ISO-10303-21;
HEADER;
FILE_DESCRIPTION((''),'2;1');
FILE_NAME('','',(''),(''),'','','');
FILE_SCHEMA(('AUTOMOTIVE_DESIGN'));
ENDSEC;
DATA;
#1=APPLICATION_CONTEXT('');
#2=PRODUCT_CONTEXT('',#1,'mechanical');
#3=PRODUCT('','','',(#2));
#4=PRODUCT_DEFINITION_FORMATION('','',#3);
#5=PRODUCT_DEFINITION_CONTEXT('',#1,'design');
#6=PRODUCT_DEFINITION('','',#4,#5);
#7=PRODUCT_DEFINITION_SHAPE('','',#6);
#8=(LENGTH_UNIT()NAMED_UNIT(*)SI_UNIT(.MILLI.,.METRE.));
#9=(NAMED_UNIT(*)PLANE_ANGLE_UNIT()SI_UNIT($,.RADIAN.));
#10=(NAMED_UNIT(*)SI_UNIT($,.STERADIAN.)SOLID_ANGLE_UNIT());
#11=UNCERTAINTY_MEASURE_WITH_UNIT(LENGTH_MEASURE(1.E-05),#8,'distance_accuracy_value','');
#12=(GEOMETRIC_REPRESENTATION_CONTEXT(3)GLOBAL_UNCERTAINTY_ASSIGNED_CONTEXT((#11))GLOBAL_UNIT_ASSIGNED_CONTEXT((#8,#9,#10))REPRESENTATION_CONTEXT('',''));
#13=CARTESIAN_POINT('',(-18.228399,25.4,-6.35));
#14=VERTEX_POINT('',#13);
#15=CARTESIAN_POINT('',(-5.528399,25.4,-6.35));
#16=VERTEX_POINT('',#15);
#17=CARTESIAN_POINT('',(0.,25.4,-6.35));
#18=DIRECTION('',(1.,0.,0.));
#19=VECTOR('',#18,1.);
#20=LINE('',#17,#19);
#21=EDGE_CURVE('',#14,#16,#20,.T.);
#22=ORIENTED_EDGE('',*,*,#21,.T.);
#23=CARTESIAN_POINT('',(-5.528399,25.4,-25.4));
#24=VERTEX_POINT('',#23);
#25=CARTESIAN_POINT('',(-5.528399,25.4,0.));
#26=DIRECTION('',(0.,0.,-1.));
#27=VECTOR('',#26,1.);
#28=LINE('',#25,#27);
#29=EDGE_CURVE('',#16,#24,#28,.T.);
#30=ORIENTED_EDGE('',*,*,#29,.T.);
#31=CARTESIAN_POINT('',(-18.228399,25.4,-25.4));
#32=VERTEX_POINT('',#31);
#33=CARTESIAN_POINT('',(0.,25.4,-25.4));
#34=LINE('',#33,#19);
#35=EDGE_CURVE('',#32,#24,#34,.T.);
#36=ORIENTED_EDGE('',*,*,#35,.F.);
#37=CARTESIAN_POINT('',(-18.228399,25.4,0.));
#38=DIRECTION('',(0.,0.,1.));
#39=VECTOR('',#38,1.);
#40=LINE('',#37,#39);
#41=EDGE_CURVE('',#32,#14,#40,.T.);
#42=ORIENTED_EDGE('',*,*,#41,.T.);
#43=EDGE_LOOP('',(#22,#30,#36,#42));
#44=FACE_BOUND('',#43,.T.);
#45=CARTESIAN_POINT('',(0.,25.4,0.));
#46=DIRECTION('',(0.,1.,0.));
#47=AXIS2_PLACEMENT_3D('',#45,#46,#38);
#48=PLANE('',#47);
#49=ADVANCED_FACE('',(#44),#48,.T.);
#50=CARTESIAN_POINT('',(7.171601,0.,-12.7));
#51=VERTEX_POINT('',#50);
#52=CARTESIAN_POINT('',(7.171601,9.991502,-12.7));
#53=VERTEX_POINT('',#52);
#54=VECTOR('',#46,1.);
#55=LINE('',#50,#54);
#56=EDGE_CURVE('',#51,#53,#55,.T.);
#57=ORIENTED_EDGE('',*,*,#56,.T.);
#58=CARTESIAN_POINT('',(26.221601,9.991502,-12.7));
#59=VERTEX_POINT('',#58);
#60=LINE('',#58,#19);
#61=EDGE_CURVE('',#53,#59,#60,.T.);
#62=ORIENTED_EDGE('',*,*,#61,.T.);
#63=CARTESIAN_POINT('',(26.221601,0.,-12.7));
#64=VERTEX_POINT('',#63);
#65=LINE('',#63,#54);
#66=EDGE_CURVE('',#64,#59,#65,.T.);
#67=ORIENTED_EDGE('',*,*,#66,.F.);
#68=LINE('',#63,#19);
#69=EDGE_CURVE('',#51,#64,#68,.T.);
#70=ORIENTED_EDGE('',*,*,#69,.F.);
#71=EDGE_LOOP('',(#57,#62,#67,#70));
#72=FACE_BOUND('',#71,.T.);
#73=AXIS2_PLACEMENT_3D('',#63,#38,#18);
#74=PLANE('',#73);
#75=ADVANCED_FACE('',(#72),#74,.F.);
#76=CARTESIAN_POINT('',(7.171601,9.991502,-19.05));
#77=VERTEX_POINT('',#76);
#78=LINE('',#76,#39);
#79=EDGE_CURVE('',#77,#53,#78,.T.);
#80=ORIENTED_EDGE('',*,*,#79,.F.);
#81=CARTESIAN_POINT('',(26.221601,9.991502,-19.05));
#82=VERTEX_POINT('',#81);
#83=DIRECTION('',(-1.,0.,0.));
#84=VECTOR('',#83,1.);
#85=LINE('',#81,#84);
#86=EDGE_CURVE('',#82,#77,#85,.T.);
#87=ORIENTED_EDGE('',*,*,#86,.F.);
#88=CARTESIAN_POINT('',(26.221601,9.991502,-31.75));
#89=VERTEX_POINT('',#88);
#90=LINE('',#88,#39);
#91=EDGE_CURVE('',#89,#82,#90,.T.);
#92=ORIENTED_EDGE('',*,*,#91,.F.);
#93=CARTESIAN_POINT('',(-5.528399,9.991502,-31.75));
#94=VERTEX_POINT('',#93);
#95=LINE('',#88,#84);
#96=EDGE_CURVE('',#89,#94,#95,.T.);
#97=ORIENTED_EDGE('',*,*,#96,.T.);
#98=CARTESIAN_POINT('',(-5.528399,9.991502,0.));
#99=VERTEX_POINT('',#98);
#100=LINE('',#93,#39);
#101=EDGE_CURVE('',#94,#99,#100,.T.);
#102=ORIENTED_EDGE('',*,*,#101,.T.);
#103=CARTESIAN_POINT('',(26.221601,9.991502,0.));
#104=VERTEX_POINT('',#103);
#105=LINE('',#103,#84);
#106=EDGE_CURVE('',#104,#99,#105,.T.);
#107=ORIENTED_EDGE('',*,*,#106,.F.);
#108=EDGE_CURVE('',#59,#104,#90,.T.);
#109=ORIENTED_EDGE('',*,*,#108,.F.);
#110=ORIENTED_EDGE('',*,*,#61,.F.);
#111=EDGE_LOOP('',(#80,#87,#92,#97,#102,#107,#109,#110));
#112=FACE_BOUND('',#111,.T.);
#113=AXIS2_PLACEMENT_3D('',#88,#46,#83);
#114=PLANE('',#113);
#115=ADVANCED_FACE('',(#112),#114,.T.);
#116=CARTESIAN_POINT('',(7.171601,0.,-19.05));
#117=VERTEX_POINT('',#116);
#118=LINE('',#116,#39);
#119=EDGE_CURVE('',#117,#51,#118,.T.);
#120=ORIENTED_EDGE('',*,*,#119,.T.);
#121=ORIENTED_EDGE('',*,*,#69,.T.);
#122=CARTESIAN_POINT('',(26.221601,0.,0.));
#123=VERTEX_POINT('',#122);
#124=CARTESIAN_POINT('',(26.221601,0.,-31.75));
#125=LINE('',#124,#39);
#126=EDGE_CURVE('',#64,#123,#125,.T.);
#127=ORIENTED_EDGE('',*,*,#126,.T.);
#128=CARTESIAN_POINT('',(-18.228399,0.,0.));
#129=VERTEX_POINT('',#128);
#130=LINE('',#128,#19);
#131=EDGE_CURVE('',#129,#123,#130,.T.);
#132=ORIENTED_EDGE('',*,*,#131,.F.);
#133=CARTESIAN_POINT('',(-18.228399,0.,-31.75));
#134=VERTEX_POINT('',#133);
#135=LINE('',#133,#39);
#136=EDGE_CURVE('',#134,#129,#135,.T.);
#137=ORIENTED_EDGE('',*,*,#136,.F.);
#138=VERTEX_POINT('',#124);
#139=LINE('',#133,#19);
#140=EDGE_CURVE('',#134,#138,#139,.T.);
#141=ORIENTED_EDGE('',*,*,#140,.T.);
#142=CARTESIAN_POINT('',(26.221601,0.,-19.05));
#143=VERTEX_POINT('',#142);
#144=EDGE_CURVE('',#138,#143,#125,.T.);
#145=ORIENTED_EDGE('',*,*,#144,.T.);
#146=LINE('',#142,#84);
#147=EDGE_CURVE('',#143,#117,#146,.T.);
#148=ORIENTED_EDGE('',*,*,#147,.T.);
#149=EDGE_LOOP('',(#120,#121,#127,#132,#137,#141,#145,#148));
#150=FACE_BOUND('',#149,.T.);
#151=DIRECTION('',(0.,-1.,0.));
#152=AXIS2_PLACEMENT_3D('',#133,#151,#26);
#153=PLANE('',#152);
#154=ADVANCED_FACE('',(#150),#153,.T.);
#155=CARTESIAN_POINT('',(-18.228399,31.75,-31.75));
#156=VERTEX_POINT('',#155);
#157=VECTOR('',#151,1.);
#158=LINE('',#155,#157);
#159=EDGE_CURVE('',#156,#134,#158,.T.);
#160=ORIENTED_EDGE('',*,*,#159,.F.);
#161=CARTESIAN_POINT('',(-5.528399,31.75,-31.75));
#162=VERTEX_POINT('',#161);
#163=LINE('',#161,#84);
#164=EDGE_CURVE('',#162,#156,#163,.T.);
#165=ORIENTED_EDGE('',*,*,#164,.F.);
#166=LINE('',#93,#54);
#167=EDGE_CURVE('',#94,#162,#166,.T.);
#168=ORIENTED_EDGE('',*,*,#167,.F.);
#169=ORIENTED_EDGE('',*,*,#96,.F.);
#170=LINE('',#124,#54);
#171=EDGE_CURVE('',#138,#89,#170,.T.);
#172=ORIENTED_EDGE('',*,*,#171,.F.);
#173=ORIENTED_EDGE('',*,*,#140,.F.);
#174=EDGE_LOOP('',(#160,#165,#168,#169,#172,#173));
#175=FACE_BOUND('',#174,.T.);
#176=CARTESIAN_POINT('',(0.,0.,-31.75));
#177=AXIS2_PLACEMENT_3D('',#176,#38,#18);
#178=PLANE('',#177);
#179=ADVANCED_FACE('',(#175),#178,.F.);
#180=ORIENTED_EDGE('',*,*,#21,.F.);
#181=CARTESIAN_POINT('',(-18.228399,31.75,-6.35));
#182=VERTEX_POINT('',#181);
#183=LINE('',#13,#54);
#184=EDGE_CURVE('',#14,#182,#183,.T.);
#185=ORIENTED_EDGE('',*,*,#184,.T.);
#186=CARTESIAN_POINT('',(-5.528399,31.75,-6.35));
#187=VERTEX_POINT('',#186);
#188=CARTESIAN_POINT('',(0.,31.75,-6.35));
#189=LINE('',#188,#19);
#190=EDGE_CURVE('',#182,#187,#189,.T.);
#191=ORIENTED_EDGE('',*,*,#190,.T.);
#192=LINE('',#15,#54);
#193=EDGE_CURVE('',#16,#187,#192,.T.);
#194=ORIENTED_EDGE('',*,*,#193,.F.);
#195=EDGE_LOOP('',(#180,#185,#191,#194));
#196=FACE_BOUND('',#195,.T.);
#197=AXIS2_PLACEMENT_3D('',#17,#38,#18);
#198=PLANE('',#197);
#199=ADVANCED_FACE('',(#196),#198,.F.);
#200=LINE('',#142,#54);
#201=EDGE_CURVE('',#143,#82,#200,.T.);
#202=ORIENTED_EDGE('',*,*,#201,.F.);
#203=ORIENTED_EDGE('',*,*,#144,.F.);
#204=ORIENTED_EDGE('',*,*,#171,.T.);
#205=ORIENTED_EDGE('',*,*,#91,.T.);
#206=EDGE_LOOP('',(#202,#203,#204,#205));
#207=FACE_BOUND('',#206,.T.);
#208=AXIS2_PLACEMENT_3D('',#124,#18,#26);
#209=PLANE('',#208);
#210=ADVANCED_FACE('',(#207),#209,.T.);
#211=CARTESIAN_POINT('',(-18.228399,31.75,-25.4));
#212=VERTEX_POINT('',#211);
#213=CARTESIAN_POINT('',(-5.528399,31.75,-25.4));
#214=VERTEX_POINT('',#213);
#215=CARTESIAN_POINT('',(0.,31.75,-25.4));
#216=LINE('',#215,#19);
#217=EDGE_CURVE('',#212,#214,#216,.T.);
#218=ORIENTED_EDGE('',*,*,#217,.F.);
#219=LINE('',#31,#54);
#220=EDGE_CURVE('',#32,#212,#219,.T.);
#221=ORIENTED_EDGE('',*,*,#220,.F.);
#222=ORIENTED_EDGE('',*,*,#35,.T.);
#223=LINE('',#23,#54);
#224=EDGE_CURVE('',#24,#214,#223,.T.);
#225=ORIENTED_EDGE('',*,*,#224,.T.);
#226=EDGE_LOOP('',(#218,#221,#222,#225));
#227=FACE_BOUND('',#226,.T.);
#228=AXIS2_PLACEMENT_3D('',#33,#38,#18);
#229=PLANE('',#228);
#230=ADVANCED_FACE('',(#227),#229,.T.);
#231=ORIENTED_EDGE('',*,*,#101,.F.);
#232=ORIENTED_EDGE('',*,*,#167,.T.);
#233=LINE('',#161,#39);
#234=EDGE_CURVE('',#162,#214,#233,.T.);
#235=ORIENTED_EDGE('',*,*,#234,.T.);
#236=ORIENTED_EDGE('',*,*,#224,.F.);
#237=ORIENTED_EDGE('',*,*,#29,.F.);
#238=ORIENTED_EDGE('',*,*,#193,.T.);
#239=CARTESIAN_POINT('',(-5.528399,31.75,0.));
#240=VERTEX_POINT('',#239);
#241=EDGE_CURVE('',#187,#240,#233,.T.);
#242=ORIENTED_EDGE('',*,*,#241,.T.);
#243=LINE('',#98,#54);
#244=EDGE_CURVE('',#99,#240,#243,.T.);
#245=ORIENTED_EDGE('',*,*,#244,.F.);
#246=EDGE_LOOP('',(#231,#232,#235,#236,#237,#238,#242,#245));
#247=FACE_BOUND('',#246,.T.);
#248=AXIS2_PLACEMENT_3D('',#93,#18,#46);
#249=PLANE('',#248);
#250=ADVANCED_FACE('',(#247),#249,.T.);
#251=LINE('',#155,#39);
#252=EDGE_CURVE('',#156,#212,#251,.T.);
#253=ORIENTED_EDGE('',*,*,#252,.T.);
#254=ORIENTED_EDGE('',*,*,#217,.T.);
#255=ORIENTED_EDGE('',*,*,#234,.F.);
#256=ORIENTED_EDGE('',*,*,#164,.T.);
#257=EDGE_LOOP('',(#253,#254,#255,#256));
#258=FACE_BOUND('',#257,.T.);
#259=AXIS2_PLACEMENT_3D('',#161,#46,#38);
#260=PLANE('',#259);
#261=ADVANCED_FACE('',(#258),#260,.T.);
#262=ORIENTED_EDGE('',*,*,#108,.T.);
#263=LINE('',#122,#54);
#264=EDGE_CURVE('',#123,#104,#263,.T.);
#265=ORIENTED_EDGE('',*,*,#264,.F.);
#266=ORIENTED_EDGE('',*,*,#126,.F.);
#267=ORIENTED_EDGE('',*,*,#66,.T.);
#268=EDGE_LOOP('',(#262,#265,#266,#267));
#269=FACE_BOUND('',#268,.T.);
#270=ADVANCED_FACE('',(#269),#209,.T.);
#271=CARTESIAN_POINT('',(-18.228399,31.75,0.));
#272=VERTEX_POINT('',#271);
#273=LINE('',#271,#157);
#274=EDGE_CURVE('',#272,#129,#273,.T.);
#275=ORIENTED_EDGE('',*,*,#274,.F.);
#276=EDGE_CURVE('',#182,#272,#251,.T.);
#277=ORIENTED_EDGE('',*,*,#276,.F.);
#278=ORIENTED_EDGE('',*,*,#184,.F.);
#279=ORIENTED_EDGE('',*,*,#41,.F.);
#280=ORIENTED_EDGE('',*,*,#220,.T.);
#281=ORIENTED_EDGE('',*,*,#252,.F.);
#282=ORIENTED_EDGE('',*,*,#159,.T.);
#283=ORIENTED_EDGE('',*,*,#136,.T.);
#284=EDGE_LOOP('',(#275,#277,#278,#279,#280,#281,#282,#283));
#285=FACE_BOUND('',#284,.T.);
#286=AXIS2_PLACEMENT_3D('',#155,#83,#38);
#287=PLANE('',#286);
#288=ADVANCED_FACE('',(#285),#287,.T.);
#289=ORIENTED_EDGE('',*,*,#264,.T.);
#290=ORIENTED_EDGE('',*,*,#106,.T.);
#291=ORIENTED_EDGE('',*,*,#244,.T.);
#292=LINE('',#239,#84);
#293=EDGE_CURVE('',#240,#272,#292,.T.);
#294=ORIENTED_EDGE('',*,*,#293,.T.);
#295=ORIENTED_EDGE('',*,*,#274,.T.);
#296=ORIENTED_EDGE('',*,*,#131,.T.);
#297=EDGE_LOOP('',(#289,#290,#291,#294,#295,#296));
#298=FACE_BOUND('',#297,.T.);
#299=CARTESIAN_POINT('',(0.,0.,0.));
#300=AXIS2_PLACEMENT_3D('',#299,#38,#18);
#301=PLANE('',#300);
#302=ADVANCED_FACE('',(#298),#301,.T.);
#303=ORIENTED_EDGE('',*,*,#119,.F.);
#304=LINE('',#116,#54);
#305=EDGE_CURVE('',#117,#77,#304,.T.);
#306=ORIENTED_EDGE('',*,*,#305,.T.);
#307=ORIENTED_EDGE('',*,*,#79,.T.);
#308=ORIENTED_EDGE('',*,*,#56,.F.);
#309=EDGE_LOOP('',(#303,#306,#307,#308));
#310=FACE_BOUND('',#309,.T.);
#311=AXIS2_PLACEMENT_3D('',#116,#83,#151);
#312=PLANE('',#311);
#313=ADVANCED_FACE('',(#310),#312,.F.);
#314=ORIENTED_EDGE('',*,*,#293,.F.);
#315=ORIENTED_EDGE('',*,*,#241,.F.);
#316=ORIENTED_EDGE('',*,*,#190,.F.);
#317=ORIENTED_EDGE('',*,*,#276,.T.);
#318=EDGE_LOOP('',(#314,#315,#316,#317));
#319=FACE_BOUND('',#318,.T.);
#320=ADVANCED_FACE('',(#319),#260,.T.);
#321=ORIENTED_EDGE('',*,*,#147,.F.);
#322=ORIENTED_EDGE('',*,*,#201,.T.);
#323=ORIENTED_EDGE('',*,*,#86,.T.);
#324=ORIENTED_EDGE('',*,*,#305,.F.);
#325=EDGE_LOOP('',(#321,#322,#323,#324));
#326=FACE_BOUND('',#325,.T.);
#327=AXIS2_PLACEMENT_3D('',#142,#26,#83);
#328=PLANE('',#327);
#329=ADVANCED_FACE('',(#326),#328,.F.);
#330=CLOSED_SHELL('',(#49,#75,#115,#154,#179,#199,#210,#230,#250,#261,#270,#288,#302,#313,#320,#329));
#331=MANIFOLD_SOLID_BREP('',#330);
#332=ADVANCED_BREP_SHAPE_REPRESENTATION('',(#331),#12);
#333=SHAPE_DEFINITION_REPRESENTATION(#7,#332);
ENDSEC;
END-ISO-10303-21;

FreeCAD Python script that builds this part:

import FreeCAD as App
import Part
import Sketcher
Q = App.Units.Quantity

doc = App.newDocument("Part")
body = doc.addObject("PartDesign::Body", "Body")

sketch1 = body.newObject("Sketcher::SketchObject", "Sketch")
sketch1.AttachmentSupport = (doc.getObject("XY_Plane"), [""])
sketch1.MapMode = "FlatFace"
sketch1.addGeometry([
    Part.LineSegment(App.Vector(-18.228399, 0, 0), App.Vector(26.221601, 0, 0)),
    Part.LineSegment(App.Vector(26.221601, 0, 0), App.Vector(26.221601, 9.991502, 0)),
    Part.LineSegment(App.Vector(26.221601, 9.991502, 0), App.Vector(-5.528399, 9.991502, 0)),
    Part.LineSegment(App.Vector(-5.528399, 9.991502, 0), App.Vector(-5.528399, 31.75, 0)),
    Part.LineSegment(App.Vector(-5.528399, 31.75, 0), App.Vector(-18.228399, 31.75, 0)),
    Part.LineSegment(App.Vector(-18.228399, 31.75, 0), App.Vector(-18.228399, 0, 0)),
], False)
sketch1.addConstraint([
    Sketcher.Constraint("Coincident", 0, 2, 1, 1),
    Sketcher.Constraint("Coincident", 1, 2, 2, 1),
    Sketcher.Constraint("Coincident", 2, 2, 3, 1),
    Sketcher.Constraint("Coincident", 3, 2, 4, 1),
    Sketcher.Constraint("Coincident", 4, 2, 5, 1),
    Sketcher.Constraint("Coincident", 5, 2, 0, 1),
    Sketcher.Constraint("Horizontal", 0),
    Sketcher.Constraint("Vertical", 1),
    Sketcher.Constraint("Horizontal", 2),
    Sketcher.Constraint("Vertical", 3),
    Sketcher.Constraint("Horizontal", 4),
    Sketcher.Constraint("Vertical", 5),
    Sketcher.Constraint("PointOnObject", 0, 2, -1),
    Sketcher.Constraint("Equal", 2, 5),
    Sketcher.Constraint("DistanceX", 4, 2, 4, 1, Q("0.5 in")),
    Sketcher.Constraint("DistanceX", 0, 1, 0, 2, Q("1.75 in")),
    Sketcher.Constraint("DistanceX", -1, 1, 0, 2, 26.221601),
    Sketcher.Constraint("DistanceY", 1, 1, 1, 2, 9.991502),
])
pad1 = body.newObject("PartDesign::Pad", "Pad")
pad1.Profile = sketch1
pad1.Length = Q("1.25 in")
pad1.Reversed = True

sketch2 = body.newObject("Sketcher::SketchObject", "Sketch001")
sketch2.AttachmentSupport = (doc.getObject("XZ_Plane"), [""])
sketch2.MapMode = "FlatFace"
sketch2.AttachmentOffset = App.Placement(App.Vector(0, 0, -1.25 * 25.4), App.Rotation())
sketch2.addGeometry([
    Part.LineSegment(App.Vector(-18.228399, -25.4, 0), App.Vector(-18.228399, -6.35, 0)),
    Part.LineSegment(App.Vector(-18.228399, -6.35, 0), App.Vector(-5.528399, -6.35, 0)),
    Part.LineSegment(App.Vector(-5.528399, -6.35, 0), App.Vector(-5.528399, -25.4, 0)),
    Part.LineSegment(App.Vector(-5.528399, -25.4, 0), App.Vector(-18.228399, -25.4, 0)),
], False)
sketch2.addConstraint([
    Sketcher.Constraint("Coincident", 0, 2, 1, 1),
    Sketcher.Constraint("Coincident", 1, 2, 2, 1),
    Sketcher.Constraint("Coincident", 2, 2, 3, 1),
    Sketcher.Constraint("Coincident", 3, 2, 0, 1),
    Sketcher.Constraint("Vertical", 0),
    Sketcher.Constraint("Horizontal", 1),
    Sketcher.Constraint("Vertical", 2),
    Sketcher.Constraint("Horizontal", 3),
    Sketcher.Constraint("DistanceX", 1, 1, 1, 2, Q("0.5 in")),
    Sketcher.Constraint("DistanceY", 2, 2, -1, 1, Q("1 in")),
    Sketcher.Constraint("DistanceY", 0, 1, 0, 2, Q("0.75 in")),
    Sketcher.Constraint("DistanceX", 0, 2, -1, 1, 18.228399),
])
pocket1 = body.newObject("PartDesign::Pocket", "Pocket")
pocket1.Profile = sketch2
pocket1.Length = Q("0.25 in")
pocket1.Reversed = True

sketch3 = body.newObject("Sketcher::SketchObject", "Sketch002")
sketch3.AttachmentSupport = (doc.getObject("XZ_Plane"), [""])
sketch3.MapMode = "FlatFace"
sketch3.AttachmentOffset = App.Placement(App.Vector(0, 0, -9.991502), App.Rotation())
sketch3.addGeometry([
    Part.LineSegment(App.Vector(7.171601, -19.05, 0), App.Vector(7.171601, -12.7, 0)),
    Part.LineSegment(App.Vector(7.171601, -12.7, 0), App.Vector(26.221601, -12.7, 0)),
    Part.LineSegment(App.Vector(26.221601, -12.7, 0), App.Vector(26.221601, -19.05, 0)),
    Part.LineSegment(App.Vector(26.221601, -19.05, 0), App.Vector(7.171601, -19.05, 0)),
], False)
sketch3.addConstraint([
    Sketcher.Constraint("Coincident", 0, 2, 1, 1),
    Sketcher.Constraint("Coincident", 1, 2, 2, 1),
    Sketcher.Constraint("Coincident", 2, 2, 3, 1),
    Sketcher.Constraint("Coincident", 3, 2, 0, 1),
    Sketcher.Constraint("Vertical", 0),
    Sketcher.Constraint("Horizontal", 1),
    Sketcher.Constraint("Vertical", 2),
    Sketcher.Constraint("Horizontal", 3),
    Sketcher.Constraint("DistanceX", 1, 1, 1, 2, Q("0.75 in")),
    Sketcher.Constraint("DistanceY", 0, 1, 0, 2, Q("0.25 in")),
    Sketcher.Constraint("DistanceY", 0, 2, -1, 1, Q("0.5 in")),
    Sketcher.Constraint("DistanceX", -1, 1, 0, 2, 7.171601),
])
pocket2 = body.newObject("PartDesign::Pocket", "Pocket001")
pocket2.Profile = sketch3
pocket2.Type = "ThroughAll"
pocket2.Reversed = True

doc.recompute()
